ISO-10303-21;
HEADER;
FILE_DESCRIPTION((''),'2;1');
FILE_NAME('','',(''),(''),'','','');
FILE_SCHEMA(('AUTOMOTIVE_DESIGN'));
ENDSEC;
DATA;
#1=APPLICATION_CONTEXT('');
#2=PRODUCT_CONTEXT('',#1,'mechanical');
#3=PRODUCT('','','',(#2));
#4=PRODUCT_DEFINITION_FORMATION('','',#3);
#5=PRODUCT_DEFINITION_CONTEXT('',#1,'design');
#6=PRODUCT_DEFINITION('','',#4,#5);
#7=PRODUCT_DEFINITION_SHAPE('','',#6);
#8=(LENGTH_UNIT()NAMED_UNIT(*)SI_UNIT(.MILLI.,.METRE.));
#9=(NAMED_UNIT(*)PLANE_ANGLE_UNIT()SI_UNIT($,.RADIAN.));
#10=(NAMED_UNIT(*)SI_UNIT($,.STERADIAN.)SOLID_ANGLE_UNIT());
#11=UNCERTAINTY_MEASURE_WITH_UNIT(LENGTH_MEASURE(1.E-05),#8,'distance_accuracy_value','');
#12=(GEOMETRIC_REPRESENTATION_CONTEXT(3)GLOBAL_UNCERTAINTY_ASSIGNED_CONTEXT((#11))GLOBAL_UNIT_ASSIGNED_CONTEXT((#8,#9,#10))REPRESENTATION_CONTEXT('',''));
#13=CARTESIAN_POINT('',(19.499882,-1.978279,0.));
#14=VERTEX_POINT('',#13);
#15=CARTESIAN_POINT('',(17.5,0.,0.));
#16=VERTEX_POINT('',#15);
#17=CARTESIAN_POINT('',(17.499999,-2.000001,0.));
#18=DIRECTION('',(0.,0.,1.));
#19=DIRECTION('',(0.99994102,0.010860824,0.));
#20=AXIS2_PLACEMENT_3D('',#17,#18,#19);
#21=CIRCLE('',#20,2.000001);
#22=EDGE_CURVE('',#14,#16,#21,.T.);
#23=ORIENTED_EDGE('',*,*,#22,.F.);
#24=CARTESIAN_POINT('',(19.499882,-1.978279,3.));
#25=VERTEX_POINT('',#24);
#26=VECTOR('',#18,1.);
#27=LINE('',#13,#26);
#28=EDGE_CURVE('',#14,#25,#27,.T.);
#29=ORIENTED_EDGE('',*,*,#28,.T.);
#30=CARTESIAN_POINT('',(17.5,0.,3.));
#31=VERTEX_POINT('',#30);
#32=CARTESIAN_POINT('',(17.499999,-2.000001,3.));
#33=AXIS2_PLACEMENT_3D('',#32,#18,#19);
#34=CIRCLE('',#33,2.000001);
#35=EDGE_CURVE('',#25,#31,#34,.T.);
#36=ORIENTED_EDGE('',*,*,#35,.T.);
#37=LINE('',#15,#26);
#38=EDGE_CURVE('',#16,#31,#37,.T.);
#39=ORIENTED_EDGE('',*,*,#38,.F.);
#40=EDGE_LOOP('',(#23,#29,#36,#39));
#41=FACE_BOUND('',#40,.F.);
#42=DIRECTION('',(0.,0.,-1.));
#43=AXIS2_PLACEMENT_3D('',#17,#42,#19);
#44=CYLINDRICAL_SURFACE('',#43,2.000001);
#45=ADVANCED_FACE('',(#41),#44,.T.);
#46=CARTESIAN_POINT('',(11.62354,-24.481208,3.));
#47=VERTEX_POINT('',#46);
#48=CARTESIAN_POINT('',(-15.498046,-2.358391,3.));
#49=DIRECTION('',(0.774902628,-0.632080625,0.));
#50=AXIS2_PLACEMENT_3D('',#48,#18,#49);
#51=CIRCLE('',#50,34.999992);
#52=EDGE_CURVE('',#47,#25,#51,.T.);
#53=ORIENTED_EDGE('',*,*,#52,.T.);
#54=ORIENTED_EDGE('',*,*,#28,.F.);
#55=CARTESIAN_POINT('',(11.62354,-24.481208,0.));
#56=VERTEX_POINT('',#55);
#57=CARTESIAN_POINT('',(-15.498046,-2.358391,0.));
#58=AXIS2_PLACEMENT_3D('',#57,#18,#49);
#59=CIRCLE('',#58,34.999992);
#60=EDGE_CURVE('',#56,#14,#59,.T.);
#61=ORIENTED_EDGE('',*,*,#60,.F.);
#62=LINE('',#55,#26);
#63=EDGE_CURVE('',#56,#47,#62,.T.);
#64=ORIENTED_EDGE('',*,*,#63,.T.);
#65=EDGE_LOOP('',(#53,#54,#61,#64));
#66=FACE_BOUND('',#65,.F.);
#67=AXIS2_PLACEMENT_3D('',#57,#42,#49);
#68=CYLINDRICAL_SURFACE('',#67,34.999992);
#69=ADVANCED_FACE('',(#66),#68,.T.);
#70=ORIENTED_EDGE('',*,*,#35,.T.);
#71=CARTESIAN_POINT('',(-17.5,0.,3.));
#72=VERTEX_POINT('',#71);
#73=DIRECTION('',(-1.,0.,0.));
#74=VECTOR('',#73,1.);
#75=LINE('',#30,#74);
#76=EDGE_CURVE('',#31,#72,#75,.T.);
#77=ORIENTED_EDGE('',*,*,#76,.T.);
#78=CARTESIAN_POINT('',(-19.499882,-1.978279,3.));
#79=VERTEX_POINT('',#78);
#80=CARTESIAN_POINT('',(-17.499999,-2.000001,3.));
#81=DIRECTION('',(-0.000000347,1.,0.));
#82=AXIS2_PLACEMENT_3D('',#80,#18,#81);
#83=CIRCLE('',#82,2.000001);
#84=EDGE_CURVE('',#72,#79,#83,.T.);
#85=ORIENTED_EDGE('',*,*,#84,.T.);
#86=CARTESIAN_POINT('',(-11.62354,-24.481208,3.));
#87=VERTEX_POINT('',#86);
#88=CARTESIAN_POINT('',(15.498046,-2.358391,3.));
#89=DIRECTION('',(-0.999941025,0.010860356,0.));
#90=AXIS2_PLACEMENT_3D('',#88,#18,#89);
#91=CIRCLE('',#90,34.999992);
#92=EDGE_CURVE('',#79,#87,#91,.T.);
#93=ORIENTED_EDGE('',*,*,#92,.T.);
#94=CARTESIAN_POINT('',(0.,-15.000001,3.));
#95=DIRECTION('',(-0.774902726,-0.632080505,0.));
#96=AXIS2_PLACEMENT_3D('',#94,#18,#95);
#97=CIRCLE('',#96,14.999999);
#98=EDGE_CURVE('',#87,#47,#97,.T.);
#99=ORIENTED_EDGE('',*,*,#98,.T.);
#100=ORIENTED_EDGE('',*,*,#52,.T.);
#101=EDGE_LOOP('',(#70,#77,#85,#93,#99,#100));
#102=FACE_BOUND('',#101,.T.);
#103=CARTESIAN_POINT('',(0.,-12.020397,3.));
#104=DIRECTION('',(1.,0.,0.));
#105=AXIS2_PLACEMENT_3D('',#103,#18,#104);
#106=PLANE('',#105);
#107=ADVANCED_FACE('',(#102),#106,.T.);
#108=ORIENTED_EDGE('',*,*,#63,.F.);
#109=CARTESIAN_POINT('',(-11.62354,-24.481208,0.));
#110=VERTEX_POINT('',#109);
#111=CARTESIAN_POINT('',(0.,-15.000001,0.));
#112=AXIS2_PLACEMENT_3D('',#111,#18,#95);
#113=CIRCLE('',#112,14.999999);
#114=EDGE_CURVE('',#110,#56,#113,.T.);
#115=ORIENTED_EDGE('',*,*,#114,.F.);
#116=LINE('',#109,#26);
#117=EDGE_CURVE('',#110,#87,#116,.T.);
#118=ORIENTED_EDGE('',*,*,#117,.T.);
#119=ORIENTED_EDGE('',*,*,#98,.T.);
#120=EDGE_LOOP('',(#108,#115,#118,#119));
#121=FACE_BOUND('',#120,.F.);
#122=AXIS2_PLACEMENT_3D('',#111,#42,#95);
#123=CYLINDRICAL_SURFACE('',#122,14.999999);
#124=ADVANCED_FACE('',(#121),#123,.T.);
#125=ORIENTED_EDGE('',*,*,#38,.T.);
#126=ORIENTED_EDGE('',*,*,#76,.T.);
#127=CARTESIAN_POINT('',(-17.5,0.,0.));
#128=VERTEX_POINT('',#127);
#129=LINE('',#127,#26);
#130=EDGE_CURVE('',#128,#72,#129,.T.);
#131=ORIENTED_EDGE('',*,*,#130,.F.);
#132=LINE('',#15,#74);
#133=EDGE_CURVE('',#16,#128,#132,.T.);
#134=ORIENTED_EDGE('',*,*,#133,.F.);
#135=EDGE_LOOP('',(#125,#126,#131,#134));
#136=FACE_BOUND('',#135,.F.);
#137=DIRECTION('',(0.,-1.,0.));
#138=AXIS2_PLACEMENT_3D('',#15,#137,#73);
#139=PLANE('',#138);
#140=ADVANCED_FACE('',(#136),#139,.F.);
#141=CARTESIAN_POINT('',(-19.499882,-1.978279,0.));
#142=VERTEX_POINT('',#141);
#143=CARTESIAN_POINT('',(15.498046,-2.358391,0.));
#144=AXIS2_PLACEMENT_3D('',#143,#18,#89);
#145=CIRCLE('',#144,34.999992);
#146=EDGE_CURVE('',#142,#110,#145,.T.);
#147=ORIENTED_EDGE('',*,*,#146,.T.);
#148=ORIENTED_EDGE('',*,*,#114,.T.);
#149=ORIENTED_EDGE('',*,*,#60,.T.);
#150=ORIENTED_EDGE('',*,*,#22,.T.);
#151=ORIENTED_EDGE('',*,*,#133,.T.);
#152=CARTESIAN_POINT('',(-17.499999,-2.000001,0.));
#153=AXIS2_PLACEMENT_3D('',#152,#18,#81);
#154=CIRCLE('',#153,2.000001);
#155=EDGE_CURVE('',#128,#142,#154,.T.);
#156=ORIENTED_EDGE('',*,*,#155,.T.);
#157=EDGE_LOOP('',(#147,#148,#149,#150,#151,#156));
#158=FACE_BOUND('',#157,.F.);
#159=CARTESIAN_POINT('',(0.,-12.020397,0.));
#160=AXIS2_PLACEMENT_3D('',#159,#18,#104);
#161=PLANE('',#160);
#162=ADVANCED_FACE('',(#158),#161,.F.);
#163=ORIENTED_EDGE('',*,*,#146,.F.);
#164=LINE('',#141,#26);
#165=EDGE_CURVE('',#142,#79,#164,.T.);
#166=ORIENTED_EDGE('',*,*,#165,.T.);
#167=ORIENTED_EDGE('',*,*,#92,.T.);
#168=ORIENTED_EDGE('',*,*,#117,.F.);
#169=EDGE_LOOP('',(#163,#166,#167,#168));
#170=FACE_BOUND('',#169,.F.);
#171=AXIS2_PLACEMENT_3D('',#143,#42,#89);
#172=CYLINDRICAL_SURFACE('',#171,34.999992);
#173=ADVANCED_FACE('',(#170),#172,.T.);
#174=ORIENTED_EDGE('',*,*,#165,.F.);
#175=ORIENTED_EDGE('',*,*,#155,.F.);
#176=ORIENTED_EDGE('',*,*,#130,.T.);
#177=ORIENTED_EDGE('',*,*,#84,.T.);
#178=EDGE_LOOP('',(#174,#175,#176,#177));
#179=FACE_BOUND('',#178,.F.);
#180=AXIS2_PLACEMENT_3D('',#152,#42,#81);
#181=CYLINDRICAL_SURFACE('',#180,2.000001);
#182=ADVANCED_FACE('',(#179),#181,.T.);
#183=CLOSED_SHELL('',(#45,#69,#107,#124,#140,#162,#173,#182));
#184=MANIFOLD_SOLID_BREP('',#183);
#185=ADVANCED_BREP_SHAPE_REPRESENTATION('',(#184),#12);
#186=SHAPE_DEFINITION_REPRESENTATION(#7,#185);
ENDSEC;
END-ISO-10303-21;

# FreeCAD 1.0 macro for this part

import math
import FreeCAD as App
import Part
import Sketcher

V = App.Vector
Q = App.Units.Quantity

doc = App.newDocument("Part")
body = doc.addObject("PartDesign::Body", "Body")

# Sketch on XY plane
sketch1 = doc.addObject("Sketcher::SketchObject", "Sketch")
body.addObject(sketch1)
sketch1.AttachmentSupport = (doc.XY_Plane, [""])
sketch1.MapMode = "FlatFace"
sketch1.addGeometry([
    Part.ArcOfCircle(Part.Circle(V(-17.5, -2, 0), V(0, 0, 1), 2), math.radians(90), math.radians(179)),  # 0
    Part.ArcOfCircle(Part.Circle(V(15.5, -2.4, 0), V(0, 0, 1), 35), math.radians(179), math.radians(219)),  # 1
    Part.ArcOfCircle(Part.Circle(V(0, -15, 0), V(0, 0, 1), 15), math.radians(-141), math.radians(-39)),  # 2
    Part.ArcOfCircle(Part.Circle(V(-15.5, -2.4, 0), V(0, 0, 1), 35), math.radians(-39), math.radians(1)),  # 3
    Part.ArcOfCircle(Part.Circle(V(17.5, -2, 0), V(0, 0, 1), 2), math.radians(1), math.radians(90)),  # 4
    Part.LineSegment(V(17.5, 0, 0), V(-17.5, 0, 0)),  # 5
], False)
sketch1.addConstraint([
    Sketcher.Constraint("Tangent", 0, 2, 1, 1),
    Sketcher.Constraint("Tangent", 1, 2, 2, 1),
    Sketcher.Constraint("Tangent", 2, 2, 3, 1),
    Sketcher.Constraint("Tangent", 3, 2, 4, 1),
    Sketcher.Constraint("Tangent", 4, 2, 5, 1),
    Sketcher.Constraint("Tangent", 5, 2, 0, 1),
    Sketcher.Constraint("Horizontal", 5),
    Sketcher.Constraint("Equal", 1, 3),
    Sketcher.Constraint("Equal", 0, 4),
    Sketcher.Constraint("Symmetric", 4, 2, 5, 2, -1, 1),
    Sketcher.Constraint("PointOnObject", 2, 3, -2),
    Sketcher.Constraint("Radius", 0, Q("2.000001 mm")),
    Sketcher.Constraint("Radius", 2, Q("14.999999 mm")),
    Sketcher.Constraint("DistanceX", 5, 2, 5, 1, Q("35 mm")),
    Sketcher.Constraint("DistanceY", 2, 3, -1, 1, Q("15.000001 mm")),
    Sketcher.Constraint("Radius", 1, Q("34.999992 mm")),
])
pad1 = doc.addObject("PartDesign::Pad", "Pad")
body.addObject(pad1)
pad1.Profile = sketch1
pad1.Length = 3

doc.recompute()
